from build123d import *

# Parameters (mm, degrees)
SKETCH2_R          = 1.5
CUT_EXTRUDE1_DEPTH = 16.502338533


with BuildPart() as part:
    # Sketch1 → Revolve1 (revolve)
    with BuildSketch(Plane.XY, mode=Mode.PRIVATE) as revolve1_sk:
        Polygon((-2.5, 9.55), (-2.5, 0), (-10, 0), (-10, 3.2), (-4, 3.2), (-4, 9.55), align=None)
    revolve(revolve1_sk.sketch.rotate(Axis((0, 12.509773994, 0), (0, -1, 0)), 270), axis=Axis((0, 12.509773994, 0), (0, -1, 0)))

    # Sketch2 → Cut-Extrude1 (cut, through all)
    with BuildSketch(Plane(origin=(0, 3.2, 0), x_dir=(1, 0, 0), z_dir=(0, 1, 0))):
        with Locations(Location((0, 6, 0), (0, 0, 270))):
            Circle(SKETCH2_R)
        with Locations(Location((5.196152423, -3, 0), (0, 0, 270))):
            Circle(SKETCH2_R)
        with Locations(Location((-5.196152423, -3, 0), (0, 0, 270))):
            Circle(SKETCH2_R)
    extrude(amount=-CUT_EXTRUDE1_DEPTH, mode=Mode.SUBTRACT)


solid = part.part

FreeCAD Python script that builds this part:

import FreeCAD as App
import Part
import Sketcher
from FreeCAD import Vector
Q = App.Units.Quantity

doc = App.newDocument("Part")
params = doc.addObject("Spreadsheet::Sheet", "Params")
for row, (alias, value) in enumerate([
    ("sketch1_width", "6 mm"),
    ("sketch1_width2", "1.5 mm"),
    ("sketch1_height", "3.2 mm"),
    ("sketch1_height2", "9.55 mm"),
    ("revolution_angle", "360 deg"),
    ("sketch2_diameter", "3 mm"),
], start=1):
    params.set(f"A{row}", alias)
    params.set(f"B{row}", "=" + value)
    params.setAlias(f"B{row}", alias)

body = doc.addObject("PartDesign::Body", "Body")

# Sketch on XY plane
sketch1 = body.newObject("Sketcher::SketchObject", "Sketch")
sketch1.AttachmentSupport = (doc.getObject("XY_Plane"), [""])
sketch1.MapMode = "FlatFace"
sketch1.addGeometry([
    Part.LineSegment(Vector(-2.5, 0, 0), Vector(-2.5, 9.6, 0)),  # 0
    Part.LineSegment(Vector(-2.5, 9.6, 0), Vector(-4, 9.6, 0)),  # 1
    Part.LineSegment(Vector(-4, 9.6, 0), Vector(-4, 3.2, 0)),  # 2
    Part.LineSegment(Vector(-4, 3.2, 0), Vector(-10, 3.2, 0)),  # 3
    Part.LineSegment(Vector(-10, 3.2, 0), Vector(-10, 0, 0)),  # 4
    Part.LineSegment(Vector(-10, 0, 0), Vector(-2.5, 0, 0)),  # 5
], False)
sketch1.addConstraint([
    Sketcher.Constraint("Coincident", 0, 2, 1, 1),
    Sketcher.Constraint("Coincident", 1, 2, 2, 1),
    Sketcher.Constraint("Coincident", 2, 2, 3, 1),
    Sketcher.Constraint("Coincident", 3, 2, 4, 1),
    Sketcher.Constraint("Coincident", 4, 2, 5, 1),
    Sketcher.Constraint("Coincident", 5, 2, 0, 1),
    Sketcher.Constraint("Vertical", 0),
    Sketcher.Constraint("Horizontal", 1),
    Sketcher.Constraint("Vertical", 2),
    Sketcher.Constraint("Horizontal", 3),
    Sketcher.Constraint("Vertical", 4),
    Sketcher.Constraint("Horizontal", 5),
    Sketcher.Constraint("PointOnObject", 4, 2, -1),
    Sketcher.Constraint("DistanceX", 3, 2, 3, 1, Q("6 mm")),
    Sketcher.Constraint("DistanceX", 1, 2, 1, 1, Q("1.5 mm")),
    Sketcher.Constraint("DistanceY", 4, 2, 4, 1, Q("3.2 mm")),
    Sketcher.Constraint("DistanceX", 1, 2, -1, 1, Q("4 mm")),
    Sketcher.Constraint("DistanceY", 0, 1, 0, 2, Q("9.55 mm")),
])
sketch1.setExpression("Constraints[13]", "Params.sketch1_width")
sketch1.setExpression("Constraints[14]", "Params.sketch1_width2")
sketch1.setExpression("Constraints[15]", "Params.sketch1_height")
sketch1.setExpression("Constraints[17]", "Params.sketch1_height2")
revolution = body.newObject("PartDesign::Revolution", "Revolution")
revolution.Profile = sketch1
revolution.ReferenceAxis = (sketch1, ["V_Axis"])
revolution.setExpression("Angle", "Params.revolution_angle")

# Sketch on XZ plane
sketch2 = body.newObject("Sketcher::SketchObject", "Sketch001")
sketch2.AttachmentSupport = (doc.getObject("XZ_Plane"), [""])
sketch2.MapMode = "FlatFace"
sketch2.AttachmentOffset = App.Placement(Vector(0, 0, -3.2), App.Rotation())
sketch2.addGeometry([
    Part.Circle(Vector(0, -6, 0), Vector(0, 0, 1), 1.5),
    Part.Circle(Vector(5.2, 3, 0), Vector(0, 0, 1), 1.5),
    Part.Circle(Vector(-5.2, 3, 0), Vector(0, 0, 1), 1.5),
], False)
sketch2.addConstraint([
    Sketcher.Constraint("Equal", 0, 1),
    Sketcher.Constraint("Equal", 1, 2),
    Sketcher.Constraint("Symmetric", 1, 3, 2, 3, -2),
    Sketcher.Constraint("PointOnObject", 0, 3, -2),
    Sketcher.Constraint("Diameter", 0, Q("3 mm")),
    Sketcher.Constraint("DistanceY", 0, 3, -1, 1, Q("6 mm")),
    Sketcher.Constraint("DistanceY", -1, 1, 1, 3, Q("3 mm")),
    Sketcher.Constraint("DistanceX", -1, 1, 1, 3, Q("5.196152 mm")),
])
sketch2.setExpression("Constraints[4]", "Params.sketch2_diameter")
pocket1 = body.newObject("PartDesign::Pocket", "Pocket")
pocket1.Profile = sketch2
pocket1.Type = "ThroughAll"
pocket1.Reversed = True

doc.recompute()
